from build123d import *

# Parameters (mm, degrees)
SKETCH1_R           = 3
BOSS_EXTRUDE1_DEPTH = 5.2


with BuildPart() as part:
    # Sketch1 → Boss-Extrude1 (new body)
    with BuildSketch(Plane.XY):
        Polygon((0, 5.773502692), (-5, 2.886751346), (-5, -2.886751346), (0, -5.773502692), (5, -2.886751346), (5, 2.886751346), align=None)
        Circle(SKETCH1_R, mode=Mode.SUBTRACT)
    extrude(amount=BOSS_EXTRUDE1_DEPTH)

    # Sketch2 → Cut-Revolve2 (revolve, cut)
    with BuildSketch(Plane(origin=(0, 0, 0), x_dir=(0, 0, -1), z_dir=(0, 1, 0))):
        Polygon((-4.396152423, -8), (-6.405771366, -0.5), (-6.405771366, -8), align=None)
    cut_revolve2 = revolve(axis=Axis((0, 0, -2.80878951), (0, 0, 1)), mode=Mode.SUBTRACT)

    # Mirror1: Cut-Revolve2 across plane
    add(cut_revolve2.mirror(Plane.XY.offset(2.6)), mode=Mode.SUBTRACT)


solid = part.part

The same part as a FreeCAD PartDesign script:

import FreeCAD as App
import Part
import Sketcher

V = App.Vector
Q = App.Units.Quantity


def add_polygon(sketch, points):
    """Adds a closed chain of lines whose ends are joined by coincident constraints."""
    first, n = sketch.GeometryCount, len(points)
    for a, b in zip(points, points[1:] + points[:1]):
        sketch.addGeometry(Part.LineSegment(App.Vector(*a, 0), App.Vector(*b, 0)), False)
    for i in range(n):
        sketch.addConstraint(Sketcher.Constraint("Coincident", first + i, 2, first + (i + 1) % n, 1))

doc = App.newDocument("Part")
body = doc.addObject("PartDesign::Body", "Body")

sketch1 = doc.addObject("Sketcher::SketchObject", "Sketch")
body.addObject(sketch1)
sketch1.AttachmentSupport = (doc.XY_Plane, [""])
sketch1.MapMode = "FlatFace"
add_polygon(sketch1, [(0, 5.773503), (-5, 2.886751), (-5, -2.886751), (0, -5.773503), (5, -2.886751), (5, 2.886751)])
sketch1.addGeometry(Part.Circle(V(0, 0, 0), V(0, 0, 1), 3), False)
sketch1.addConstraint(Sketcher.Constraint("Vertical", 1))
sketch1.addConstraint(Sketcher.Constraint("Vertical", 4))
sketch1.addConstraint(Sketcher.Constraint("Coincident", 6, 3, -1, 1))
sketch1.addConstraint(Sketcher.Constraint("Symmetric", 0, 2, 3, 2, -1, 1))
sketch1.addConstraint(Sketcher.Constraint("Symmetric", 2, 2, 5, 2, -1, 1))
sketch1.addConstraint(Sketcher.Constraint("PointOnObject", 2, 2, -2))
sketch1.addConstraint(Sketcher.Constraint("Parallel", 2, 5))
sketch1.addConstraint(Sketcher.Constraint("Horizontal", 1, 2, 3, 2))
sketch1.addConstraint(Sketcher.Constraint("Diameter", 6, 6.0))
sketch1.addConstraint(Sketcher.Constraint("Angle", 0, Q("-150 deg")))
sketch1.addConstraint(Sketcher.Constraint("DistanceX", 0, 2, -1, 1, 5.0))
sketch1.addConstraint(Sketcher.Constraint("DistanceY", 1, 2, 1, 1, 5.773503))
pad1 = doc.addObject("PartDesign::Pad", "Pad")
body.addObject(pad1)
pad1.Profile = sketch1
pad1.Length = 5.2

sketch2 = doc.addObject("Sketcher::SketchObject", "Sketch001")
body.addObject(sketch2)
sketch2.AttachmentSupport = (doc.XZ_Plane, [""])
sketch2.MapMode = "FlatFace"
add_polygon(sketch2, [(8, 4.396152), (0.5, 6.405771), (8, 6.405771)])
sketch2.addConstraint(Sketcher.Constraint("Horizontal", 1))
sketch2.addConstraint(Sketcher.Constraint("Vertical", 2))
sketch2.addConstraint(Sketcher.Constraint("Angle", 0, Q("165 deg")))
sketch2.addConstraint(Sketcher.Constraint("DistanceX", 1, 1, 1, 2, 7.5))
sketch2.addConstraint(Sketcher.Constraint("DistanceX", -1, 1, 1, 2, 8.0))
sketch2.addConstraint(Sketcher.Constraint("DistanceY", -1, 1, 0, 2, 6.405771))
groove = doc.addObject("PartDesign::Groove", "Groove")
body.addObject(groove)
groove.Profile = sketch2
groove.ReferenceAxis = (sketch2, ["V_Axis"])
groove.Angle = 360
doc.recompute()

datumplane = doc.addObject("PartDesign::Plane", "DatumPlane")
body.addObject(datumplane)
datumplane.AttachmentSupport = (doc.XY_Plane, [""])
datumplane.MapMode = "FlatFace"
datumplane.AttachmentOffset = App.Placement(V(0, 0, 2.6), App.Rotation())
mirrored = doc.addObject("PartDesign::Mirrored", "Mirrored")
body.addObject(mirrored)
mirrored.Originals = [groove]
mirrored.MirrorPlane = (datumplane, [""])
body.Tip = mirrored

doc.recompute()
